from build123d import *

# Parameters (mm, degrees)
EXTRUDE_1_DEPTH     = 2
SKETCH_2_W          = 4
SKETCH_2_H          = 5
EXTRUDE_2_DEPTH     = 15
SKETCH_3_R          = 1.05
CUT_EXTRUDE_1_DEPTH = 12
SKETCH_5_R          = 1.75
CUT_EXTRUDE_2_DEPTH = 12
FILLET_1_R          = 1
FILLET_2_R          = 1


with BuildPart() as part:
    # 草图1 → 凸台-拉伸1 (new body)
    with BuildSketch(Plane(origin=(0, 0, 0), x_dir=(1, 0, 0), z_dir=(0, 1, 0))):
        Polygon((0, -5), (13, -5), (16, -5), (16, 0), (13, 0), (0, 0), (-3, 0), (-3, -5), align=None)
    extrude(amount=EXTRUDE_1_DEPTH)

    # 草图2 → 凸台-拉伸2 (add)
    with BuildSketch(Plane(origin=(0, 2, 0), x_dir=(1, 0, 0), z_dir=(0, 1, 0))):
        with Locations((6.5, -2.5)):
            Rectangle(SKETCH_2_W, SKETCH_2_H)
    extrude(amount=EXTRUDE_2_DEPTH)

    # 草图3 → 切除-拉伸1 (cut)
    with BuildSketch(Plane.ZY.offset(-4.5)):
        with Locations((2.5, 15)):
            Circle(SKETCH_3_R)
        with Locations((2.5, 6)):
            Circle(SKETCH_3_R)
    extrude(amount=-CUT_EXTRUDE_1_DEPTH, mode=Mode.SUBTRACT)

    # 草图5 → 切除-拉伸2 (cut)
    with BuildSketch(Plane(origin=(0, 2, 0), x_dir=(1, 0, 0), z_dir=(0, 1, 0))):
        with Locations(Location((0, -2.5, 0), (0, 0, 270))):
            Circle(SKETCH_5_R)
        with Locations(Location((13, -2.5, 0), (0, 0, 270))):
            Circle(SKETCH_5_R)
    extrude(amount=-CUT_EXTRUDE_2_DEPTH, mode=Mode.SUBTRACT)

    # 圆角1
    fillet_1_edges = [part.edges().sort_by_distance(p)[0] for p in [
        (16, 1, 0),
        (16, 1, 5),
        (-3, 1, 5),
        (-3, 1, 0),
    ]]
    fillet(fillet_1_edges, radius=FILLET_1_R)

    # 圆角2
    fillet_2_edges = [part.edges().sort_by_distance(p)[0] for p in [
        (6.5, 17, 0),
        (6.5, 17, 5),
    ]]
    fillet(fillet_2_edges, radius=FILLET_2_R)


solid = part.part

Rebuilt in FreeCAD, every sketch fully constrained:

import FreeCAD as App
import Part
import Sketcher
from FreeCAD import Vector


def edges_at(feature, points):
    """Names of the edges that pass closest to the given points."""
    edges = feature.Shape.Edges
    near = lambda p: min(range(len(edges)), key=lambda i: edges[i].distToShape(Part.Vertex(*p))[0])
    return sorted({f"Edge{near(p) + 1}" for p in points})

doc = App.newDocument("Part")
params = doc.addObject("Spreadsheet::Sheet", "Params")
for row, (alias, value) in enumerate([
    ("sketch1_width", "19 mm"),
    ("sketch1_height", "5 mm"),
    ("pad1_length", "2 mm"),
    ("sketch2_width", "4 mm"),
    ("sketch2_height", "5 mm"),
    ("pad2_length", "15 mm"),
    ("sketch3_diameter", "2.1 mm"),
    ("pocket1_length", "12 mm"),
    ("sketch4_diameter", "3.5 mm"),
    ("pocket2_length", "12 mm"),
    ("fillet_radius", "1 mm"),
    ("fillet2_radius", "1 mm"),
], start=1):
    params.set(f"A{row}", alias)
    params.set(f"B{row}", "=" + value)
    params.setAlias(f"B{row}", alias)

body = doc.addObject("PartDesign::Body", "Body")

sketch1 = doc.addObject("Sketcher::SketchObject", "Sketch")
body.addObject(sketch1)
sketch1.AttachmentSupport = (doc.XZ_Plane, [""])
sketch1.MapMode = "FlatFace"
sketch1.addGeometry([
    Part.LineSegment(Vector(16, 5, 0), Vector(16, 0, 0)),
    Part.LineSegment(Vector(16, 0, 0), Vector(-3, 0, 0)),
    Part.LineSegment(Vector(-3, 0, 0), Vector(-3, 5, 0)),
    Part.LineSegment(Vector(-3, 5, 0), Vector(16, 5, 0)),
], False)
sketch1.addConstraint([
    Sketcher.Constraint("Coincident", 0, 2, 1, 1),
    Sketcher.Constraint("Coincident", 1, 2, 2, 1),
    Sketcher.Constraint("Coincident", 2, 2, 3, 1),
    Sketcher.Constraint("Coincident", 3, 2, 0, 1),
    Sketcher.Constraint("Vertical", 0),
    Sketcher.Constraint("Horizontal", 1),
    Sketcher.Constraint("Vertical", 2),
    Sketcher.Constraint("Horizontal", 3),
    Sketcher.Constraint("PointOnObject", 0, 2, -1),
    Sketcher.Constraint("DistanceX", 1, 2, 1, 1, 19.0),
    Sketcher.Constraint("DistanceY", 0, 2, 0, 1, 5.0),
    Sketcher.Constraint("DistanceX", -1, 1, 0, 2, 16.0),
])
sketch1.setExpression("Constraints[9]", "Params.sketch1_width")
sketch1.setExpression("Constraints[10]", "Params.sketch1_height")
pad1 = doc.addObject("PartDesign::Pad", "Pad")
body.addObject(pad1)
pad1.Profile = sketch1
pad1.setExpression("Length", "Params.pad1_length")
pad1.Reversed = True

sketch2 = doc.addObject("Sketcher::SketchObject", "Sketch001")
body.addObject(sketch2)
sketch2.AttachmentSupport = (doc.XZ_Plane, [""])
sketch2.MapMode = "FlatFace"
sketch2.AttachmentOffset = App.Placement(Vector(0, 0, -2), App.Rotation())
sketch2.addGeometry([
    Part.LineSegment(Vector(4.5, 0, 0), Vector(4.5, 5, 0)),
    Part.LineSegment(Vector(4.5, 5, 0), Vector(8.5, 5, 0)),
    Part.LineSegment(Vector(8.5, 5, 0), Vector(8.5, 0, 0)),
    Part.LineSegment(Vector(8.5, 0, 0), Vector(4.5, 0, 0)),
], False)
sketch2.addConstraint([
    Sketcher.Constraint("Coincident", 0, 2, 1, 1),
    Sketcher.Constraint("Coincident", 1, 2, 2, 1),
    Sketcher.Constraint("Coincident", 2, 2, 3, 1),
    Sketcher.Constraint("Coincident", 3, 2, 0, 1),
    Sketcher.Constraint("Vertical", 0),
    Sketcher.Constraint("Horizontal", 1),
    Sketcher.Constraint("Vertical", 2),
    Sketcher.Constraint("Horizontal", 3),
    Sketcher.Constraint("PointOnObject", 2, 2, -1),
    Sketcher.Constraint("DistanceX", 1, 1, 1, 2, 4.0),
    Sketcher.Constraint("DistanceY", 0, 1, 0, 2, 5.0),
    Sketcher.Constraint("DistanceX", -1, 1, 0, 2, 4.5),
])
sketch2.setExpression("Constraints[9]", "Params.sketch2_width")
sketch2.setExpression("Constraints[10]", "Params.sketch2_height")
pad2 = doc.addObject("PartDesign::Pad", "Pad001")
body.addObject(pad2)
pad2.Profile = sketch2
pad2.setExpression("Length", "Params.pad2_length")
pad2.Reversed = True

sketch3 = doc.addObject("Sketcher::SketchObject", "Sketch002")
body.addObject(sketch3)
sketch3.AttachmentSupport = (doc.YZ_Plane, [""])
sketch3.MapMode = "FlatFace"
sketch3.AttachmentOffset = App.Placement(Vector(0, 0, 4.5), App.Rotation())
sketch3.addGeometry([
    Part.Circle(Vector(15, 2.5, 0), Vector(0, 0, 1), 1.05),
    Part.Circle(Vector(6, 2.5, 0), Vector(0, 0, 1), 1.05),
], False)
sketch3.addConstraint([
    Sketcher.Constraint("Equal", 0, 1),
    Sketcher.Constraint("Horizontal", 0, 3, 1, 3),
    Sketcher.Constraint("Diameter", 0, 2.1),
    Sketcher.Constraint("DistanceX", -1, 1, 0, 3, 15.0),
    Sketcher.Constraint("DistanceX", -1, 1, 1, 3, 6.0),
    Sketcher.Constraint("DistanceY", -1, 1, 0, 3, 2.5),
])
sketch3.setExpression("Constraints[2]", "Params.sketch3_diameter")
pocket1 = doc.addObject("PartDesign::Pocket", "Pocket")
body.addObject(pocket1)
pocket1.Profile = sketch3
pocket1.setExpression("Length", "Params.pocket1_length")
pocket1.Reversed = True

sketch4 = doc.addObject("Sketcher::SketchObject", "Sketch003")
body.addObject(sketch4)
sketch4.AttachmentSupport = (doc.XZ_Plane, [""])
sketch4.MapMode = "FlatFace"
sketch4.AttachmentOffset = App.Placement(Vector(0, 0, -2), App.Rotation())
sketch4.addGeometry([
    Part.Circle(Vector(0, 2.5, 0), Vector(0, 0, 1), 1.75),
    Part.Circle(Vector(13, 2.5, 0), Vector(0, 0, 1), 1.75),
], False)
sketch4.addConstraint([
    Sketcher.Constraint("Equal", 0, 1),
    Sketcher.Constraint("PointOnObject", 0, 3, -2),
    Sketcher.Constraint("Horizontal", 0, 3, 1, 3),
    Sketcher.Constraint("Diameter", 0, 3.5),
    Sketcher.Constraint("DistanceX", -1, 1, 1, 3, 13.0),
    Sketcher.Constraint("DistanceY", -1, 1, 0, 3, 2.5),
])
sketch4.setExpression("Constraints[3]", "Params.sketch4_diameter")
pocket2 = doc.addObject("PartDesign::Pocket", "Pocket001")
body.addObject(pocket2)
pocket2.Profile = sketch4
pocket2.setExpression("Length", "Params.pocket2_length")
pocket2.Reversed = True
doc.recompute()

fillet = doc.addObject("PartDesign::Fillet", "Fillet")
body.addObject(fillet)
fillet.Base = (pocket2, edges_at(pocket2, [
    (16, 1, 0),
    (16, 1, 5),
    (-3, 1, 5),
    (-3, 1, 0),
]))
fillet.setExpression("Radius", "Params.fillet_radius")
doc.recompute()

fillet2 = doc.addObject("PartDesign::Fillet", "Fillet001")
body.addObject(fillet2)
fillet2.Base = (fillet, edges_at(fillet, [(6.5, 17, 0), (6.5, 17, 5)]))
fillet2.setExpression("Radius", "Params.fillet2_radius")

doc.recompute()
